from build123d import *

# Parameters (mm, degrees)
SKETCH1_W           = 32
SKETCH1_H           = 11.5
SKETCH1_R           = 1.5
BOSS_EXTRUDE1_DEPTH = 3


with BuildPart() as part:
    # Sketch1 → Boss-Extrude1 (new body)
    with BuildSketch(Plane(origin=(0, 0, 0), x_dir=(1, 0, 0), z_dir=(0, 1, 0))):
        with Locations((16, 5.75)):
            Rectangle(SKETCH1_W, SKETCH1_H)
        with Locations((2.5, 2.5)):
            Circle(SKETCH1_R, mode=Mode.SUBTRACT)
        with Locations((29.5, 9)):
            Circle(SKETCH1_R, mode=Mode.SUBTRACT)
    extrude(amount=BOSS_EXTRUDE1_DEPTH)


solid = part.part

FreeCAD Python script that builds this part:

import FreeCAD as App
import Part
import Sketcher
Q = App.Units.Quantity

doc = App.newDocument("Part")
body = doc.addObject("PartDesign::Body", "Body")

sketch1 = body.newObject("Sketcher::SketchObject", "Sketch")
sketch1.AttachmentSupport = (doc.getObject("XZ_Plane"), [""])
sketch1.MapMode = "FlatFace"
sketch1.addGeometry(Part.LineSegment(App.Vector(0, -11.5, 0), App.Vector(0, 0, 0)), False)
sketch1.addGeometry(Part.LineSegment(App.Vector(0, 0, 0), App.Vector(32, 0, 0)), False)
sketch1.addGeometry(Part.LineSegment(App.Vector(32, 0, 0), App.Vector(32, -11.5, 0)), False)
sketch1.addGeometry(Part.LineSegment(App.Vector(32, -11.5, 0), App.Vector(0, -11.5, 0)), False)
sketch1.addGeometry(Part.Circle(App.Vector(2.5, -2.5, 0), App.Vector(0, 0, 1), 1.5), False)
sketch1.addGeometry(Part.Circle(App.Vector(29.5, -9, 0), App.Vector(0, 0, 1), 1.5), False)
sketch1.addConstraint(Sketcher.Constraint("Coincident", 0, 2, 1, 1))
sketch1.addConstraint(Sketcher.Constraint("Coincident", 1, 2, 2, 1))
sketch1.addConstraint(Sketcher.Constraint("Coincident", 2, 2, 3, 1))
sketch1.addConstraint(Sketcher.Constraint("Coincident", 3, 2, 0, 1))
sketch1.addConstraint(Sketcher.Constraint("Vertical", 0))
sketch1.addConstraint(Sketcher.Constraint("Horizontal", 1))
sketch1.addConstraint(Sketcher.Constraint("Vertical", 2))
sketch1.addConstraint(Sketcher.Constraint("Horizontal", 3))
sketch1.addConstraint(Sketcher.Constraint("Coincident", 0, 2, -1, 1))
sketch1.addConstraint(Sketcher.Constraint("Equal", 4, 5))
sketch1.addConstraint(Sketcher.Constraint("Diameter", 4, Q("3 mm")))
sketch1.addConstraint(Sketcher.Constraint("DistanceX", 1, 1, 1, 2, Q("32 mm")))
sketch1.addConstraint(Sketcher.Constraint("DistanceY", 0, 1, 0, 2, Q("11.5 mm")))
sketch1.addConstraint(Sketcher.Constraint("DistanceY", 5, 3, -1, 1, Q("9 mm")))
sketch1.addConstraint(Sketcher.Constraint("DistanceX", 4, 3, 5, 3, Q("27 mm")))
sketch1.addConstraint(Sketcher.Constraint("DistanceY", 2, 2, 4, 3, Q("9 mm")))
sketch1.addConstraint(Sketcher.Constraint("DistanceX", -1, 1, 4, 3, Q("2.5 mm")))
pad1 = body.newObject("PartDesign::Pad", "Pad")
pad1.Profile = sketch1
pad1.Length = 3
pad1.Reversed = True

doc.recompute()
